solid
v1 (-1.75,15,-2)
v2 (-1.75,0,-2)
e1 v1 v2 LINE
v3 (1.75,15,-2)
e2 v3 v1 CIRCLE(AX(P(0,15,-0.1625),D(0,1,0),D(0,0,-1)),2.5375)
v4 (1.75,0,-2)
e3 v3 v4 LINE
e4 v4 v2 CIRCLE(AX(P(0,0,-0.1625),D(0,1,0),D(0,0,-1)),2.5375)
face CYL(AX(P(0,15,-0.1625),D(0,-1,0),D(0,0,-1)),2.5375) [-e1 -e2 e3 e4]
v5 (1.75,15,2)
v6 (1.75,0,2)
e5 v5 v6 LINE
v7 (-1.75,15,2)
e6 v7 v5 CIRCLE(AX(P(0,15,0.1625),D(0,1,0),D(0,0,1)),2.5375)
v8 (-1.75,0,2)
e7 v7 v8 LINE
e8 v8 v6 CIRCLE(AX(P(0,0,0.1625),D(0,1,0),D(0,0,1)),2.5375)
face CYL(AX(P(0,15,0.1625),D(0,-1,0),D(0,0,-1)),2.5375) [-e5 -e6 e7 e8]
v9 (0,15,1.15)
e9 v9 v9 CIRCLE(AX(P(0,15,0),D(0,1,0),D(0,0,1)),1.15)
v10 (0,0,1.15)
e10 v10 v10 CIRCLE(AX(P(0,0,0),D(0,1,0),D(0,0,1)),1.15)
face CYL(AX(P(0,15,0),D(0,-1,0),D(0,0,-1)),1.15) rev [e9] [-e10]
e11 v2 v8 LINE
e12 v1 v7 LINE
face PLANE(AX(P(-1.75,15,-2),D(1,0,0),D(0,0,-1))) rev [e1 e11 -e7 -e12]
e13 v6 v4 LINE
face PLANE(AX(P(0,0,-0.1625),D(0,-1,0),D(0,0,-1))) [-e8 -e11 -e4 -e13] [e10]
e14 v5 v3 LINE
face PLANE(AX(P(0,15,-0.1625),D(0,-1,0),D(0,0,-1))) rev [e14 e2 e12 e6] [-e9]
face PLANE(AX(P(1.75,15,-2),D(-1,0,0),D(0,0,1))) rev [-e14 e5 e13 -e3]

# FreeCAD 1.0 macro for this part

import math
import FreeCAD as App
import Part
import Sketcher
from FreeCAD import Vector

doc = App.newDocument("Part")
body = doc.addObject("PartDesign::Body", "Body")

sketch1 = body.newObject("Sketcher::SketchObject", "Sketch")
sketch1.AttachmentSupport = (doc.getObject("XZ_Plane"), [""])
sketch1.MapMode = "FlatFace"
sketch1.addGeometry([
    Part.LineSegment(Vector(-1.75, -2, 0), Vector(-1.75, 2, 0)),
    Part.ArcOfCircle(Part.Circle(Vector(0, 0.1625, 0), Vector(0, 0, 1), 2.5375), math.radians(46.397181), math.radians(133.602819)),
    Part.LineSegment(Vector(1.75, 2, 0), Vector(1.75, -2, 0)),
    Part.ArcOfCircle(Part.Circle(Vector(0, -0.1625, 0), Vector(0, 0, 1), 2.5375), math.radians(-133.602819), math.radians(-46.397181)),
    Part.Circle(Vector(0, 0, 0), Vector(0, 0, 1), 1.15),
], False)
sketch1.addConstraint([
    Sketcher.Constraint("Coincident", 0, 2, 1, 2),
    Sketcher.Constraint("Coincident", 1, 1, 2, 1),
    Sketcher.Constraint("Coincident", 2, 2, 3, 2),
    Sketcher.Constraint("Coincident", 3, 1, 0, 1),
    Sketcher.Constraint("Vertical", 0),
    Sketcher.Constraint("Vertical", 2),
    Sketcher.Constraint("Coincident", 4, 3, -1, 1),
    Sketcher.Constraint("Equal", 1, 3),
    Sketcher.Constraint("Symmetric", 1, 3, 3, 3, -1, 1),
    Sketcher.Constraint("Symmetric", 0, 2, 1, 1, -2),
    Sketcher.Constraint("Diameter", 4, 2.3),
    Sketcher.Constraint("DistanceY", 0, 1, 0, 2, 4.0),
    Sketcher.Constraint("Radius", 1, 2.5375),
    Sketcher.Constraint("DistanceX", 0, 2, 1, 1, 3.5),
])
pad1 = body.newObject("PartDesign::Pad", "Pad")
pad1.Profile = sketch1
pad1.Length = 15
pad1.Reversed = True

doc.recompute()
